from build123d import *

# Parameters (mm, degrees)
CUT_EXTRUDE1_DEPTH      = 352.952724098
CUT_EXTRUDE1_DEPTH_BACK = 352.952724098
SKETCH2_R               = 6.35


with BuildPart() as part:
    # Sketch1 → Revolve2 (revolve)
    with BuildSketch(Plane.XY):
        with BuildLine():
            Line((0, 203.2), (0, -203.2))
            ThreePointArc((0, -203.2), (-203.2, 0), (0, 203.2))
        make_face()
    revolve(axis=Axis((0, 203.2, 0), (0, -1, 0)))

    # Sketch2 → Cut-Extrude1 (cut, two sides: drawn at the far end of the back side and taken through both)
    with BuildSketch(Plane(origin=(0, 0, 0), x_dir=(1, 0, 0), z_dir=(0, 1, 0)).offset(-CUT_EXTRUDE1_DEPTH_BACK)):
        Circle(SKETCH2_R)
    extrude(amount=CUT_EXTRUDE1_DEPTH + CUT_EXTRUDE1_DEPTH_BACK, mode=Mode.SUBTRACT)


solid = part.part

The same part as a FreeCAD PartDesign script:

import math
import FreeCAD as App
import Part
import Sketcher
from FreeCAD import Vector
Q = App.Units.Quantity

doc = App.newDocument("Part")
body = doc.addObject("PartDesign::Body", "Body")

sketch1 = body.newObject("Sketcher::SketchObject", "Sketch")
sketch1.AttachmentSupport = (doc.getObject("XY_Plane"), [""])
sketch1.MapMode = "FlatFace"
sketch1.addGeometry([
    Part.LineSegment(Vector(0, -203.2, 0), Vector(0, 203.2, 0)),
    Part.ArcOfCircle(Part.Circle(Vector(0, 0, 0), Vector(0, 0, 1), 203.2), math.radians(90), math.radians(270)),
], False)
sketch1.addConstraint([
    Sketcher.Constraint("Coincident", 0, 1, 1, 2),
    Sketcher.Constraint("Coincident", 1, 1, 0, 2),
    Sketcher.Constraint("Vertical", 0),
    Sketcher.Constraint("Coincident", 1, 3, -1, 1),
    Sketcher.Constraint("PointOnObject", 0, 1, -2),
    Sketcher.Constraint("Radius", 1, Q("8 in")),
])
revolution = body.newObject("PartDesign::Revolution", "Revolution")
revolution.Profile = sketch1
revolution.ReferenceAxis = (sketch1, ["V_Axis"])
revolution.Angle = 360

sketch2 = body.newObject("Sketcher::SketchObject", "Sketch001")
sketch2.AttachmentSupport = (doc.getObject("XZ_Plane"), [""])
sketch2.MapMode = "FlatFace"
sketch2.addGeometry(Part.Circle(Vector(0, 0, 0), Vector(0, 0, 1), 6.35), False)
sketch2.addConstraint([
    Sketcher.Constraint("Coincident", 0, 3, -1, 1),
    Sketcher.Constraint("Diameter", 0, Q("0.5 in")),
])
pocket1 = body.newObject("PartDesign::Pocket", "Pocket")
pocket1.Profile = sketch2
pocket1.Type = "ThroughAll"
pocket1.Midplane = True

doc.recompute()
